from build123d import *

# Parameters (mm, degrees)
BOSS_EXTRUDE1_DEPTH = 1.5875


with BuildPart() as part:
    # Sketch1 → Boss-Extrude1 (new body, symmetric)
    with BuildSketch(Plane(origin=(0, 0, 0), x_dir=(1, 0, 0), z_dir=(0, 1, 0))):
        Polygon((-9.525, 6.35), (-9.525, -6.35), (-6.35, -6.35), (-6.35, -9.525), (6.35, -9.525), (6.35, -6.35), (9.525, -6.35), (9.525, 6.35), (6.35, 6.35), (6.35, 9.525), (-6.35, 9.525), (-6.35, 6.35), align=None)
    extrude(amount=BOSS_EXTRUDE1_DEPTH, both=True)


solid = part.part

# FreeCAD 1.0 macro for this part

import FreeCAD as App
import Part
import Sketcher
Q = App.Units.Quantity


def add_polygon(sketch, points):
    """Adds a closed chain of lines whose ends are joined by coincident constraints."""
    first, n = sketch.GeometryCount, len(points)
    for a, b in zip(points, points[1:] + points[:1]):
        sketch.addGeometry(Part.LineSegment(App.Vector(*a, 0), App.Vector(*b, 0)), False)
    for i in range(n):
        sketch.addConstraint(Sketcher.Constraint("Coincident", first + i, 2, first + (i + 1) % n, 1))

doc = App.newDocument("Part")
body = doc.addObject("PartDesign::Body", "Body")

# Sketch on XZ plane
sketch1 = body.newObject("Sketcher::SketchObject", "Sketch")
sketch1.AttachmentSupport = (doc.getObject("XZ_Plane"), [""])
sketch1.MapMode = "FlatFace"
add_polygon(sketch1, [(-9.5, -6.3), (-9.5, 6.3), (-6.3, 6.3), (-6.3, 9.5), (6.3, 9.5), (6.3, 6.3), (9.5, 6.3), (9.5, -6.3), (6.3, -6.3), (6.3, -9.5), (-6.3, -9.5), (-6.3, -6.3)])  # lines 0-11
sketch1.addConstraint([
    Sketcher.Constraint("Vertical", 0),
    Sketcher.Constraint("Horizontal", 1),
    Sketcher.Constraint("Vertical", 2),
    Sketcher.Constraint("Horizontal", 3),
    Sketcher.Constraint("Vertical", 4),
    Sketcher.Constraint("Horizontal", 5),
    Sketcher.Constraint("Vertical", 6),
    Sketcher.Constraint("Horizontal", 7),
    Sketcher.Constraint("Vertical", 8),
    Sketcher.Constraint("Horizontal", 9),
    Sketcher.Constraint("Vertical", 10),
    Sketcher.Constraint("Horizontal", 11),
    Sketcher.Constraint("Symmetric", 0, 2, 6, 2, -1, 1),
    Sketcher.Constraint("Symmetric", 2, 2, 8, 2, -1, 1),
    Sketcher.Constraint("Symmetric", 4, 2, 10, 2, -1, 1),
    Sketcher.Constraint("Symmetric", 1, 2, 4, 2, -2),
    Sketcher.Constraint("Equal", 9, 0),
    Sketcher.Constraint("Equal", 11, 2),
    Sketcher.Constraint("DistanceX", 3, 1, 3, 2, Q("0.5 in")),
    Sketcher.Constraint("DistanceX", 1, 1, 1, 2, Q("0.125 in")),
])
pad1 = body.newObject("PartDesign::Pad", "Pad")
pad1.Profile = sketch1
pad1.Length = Q("0.125 in")
pad1.Midplane = True

doc.recompute()
